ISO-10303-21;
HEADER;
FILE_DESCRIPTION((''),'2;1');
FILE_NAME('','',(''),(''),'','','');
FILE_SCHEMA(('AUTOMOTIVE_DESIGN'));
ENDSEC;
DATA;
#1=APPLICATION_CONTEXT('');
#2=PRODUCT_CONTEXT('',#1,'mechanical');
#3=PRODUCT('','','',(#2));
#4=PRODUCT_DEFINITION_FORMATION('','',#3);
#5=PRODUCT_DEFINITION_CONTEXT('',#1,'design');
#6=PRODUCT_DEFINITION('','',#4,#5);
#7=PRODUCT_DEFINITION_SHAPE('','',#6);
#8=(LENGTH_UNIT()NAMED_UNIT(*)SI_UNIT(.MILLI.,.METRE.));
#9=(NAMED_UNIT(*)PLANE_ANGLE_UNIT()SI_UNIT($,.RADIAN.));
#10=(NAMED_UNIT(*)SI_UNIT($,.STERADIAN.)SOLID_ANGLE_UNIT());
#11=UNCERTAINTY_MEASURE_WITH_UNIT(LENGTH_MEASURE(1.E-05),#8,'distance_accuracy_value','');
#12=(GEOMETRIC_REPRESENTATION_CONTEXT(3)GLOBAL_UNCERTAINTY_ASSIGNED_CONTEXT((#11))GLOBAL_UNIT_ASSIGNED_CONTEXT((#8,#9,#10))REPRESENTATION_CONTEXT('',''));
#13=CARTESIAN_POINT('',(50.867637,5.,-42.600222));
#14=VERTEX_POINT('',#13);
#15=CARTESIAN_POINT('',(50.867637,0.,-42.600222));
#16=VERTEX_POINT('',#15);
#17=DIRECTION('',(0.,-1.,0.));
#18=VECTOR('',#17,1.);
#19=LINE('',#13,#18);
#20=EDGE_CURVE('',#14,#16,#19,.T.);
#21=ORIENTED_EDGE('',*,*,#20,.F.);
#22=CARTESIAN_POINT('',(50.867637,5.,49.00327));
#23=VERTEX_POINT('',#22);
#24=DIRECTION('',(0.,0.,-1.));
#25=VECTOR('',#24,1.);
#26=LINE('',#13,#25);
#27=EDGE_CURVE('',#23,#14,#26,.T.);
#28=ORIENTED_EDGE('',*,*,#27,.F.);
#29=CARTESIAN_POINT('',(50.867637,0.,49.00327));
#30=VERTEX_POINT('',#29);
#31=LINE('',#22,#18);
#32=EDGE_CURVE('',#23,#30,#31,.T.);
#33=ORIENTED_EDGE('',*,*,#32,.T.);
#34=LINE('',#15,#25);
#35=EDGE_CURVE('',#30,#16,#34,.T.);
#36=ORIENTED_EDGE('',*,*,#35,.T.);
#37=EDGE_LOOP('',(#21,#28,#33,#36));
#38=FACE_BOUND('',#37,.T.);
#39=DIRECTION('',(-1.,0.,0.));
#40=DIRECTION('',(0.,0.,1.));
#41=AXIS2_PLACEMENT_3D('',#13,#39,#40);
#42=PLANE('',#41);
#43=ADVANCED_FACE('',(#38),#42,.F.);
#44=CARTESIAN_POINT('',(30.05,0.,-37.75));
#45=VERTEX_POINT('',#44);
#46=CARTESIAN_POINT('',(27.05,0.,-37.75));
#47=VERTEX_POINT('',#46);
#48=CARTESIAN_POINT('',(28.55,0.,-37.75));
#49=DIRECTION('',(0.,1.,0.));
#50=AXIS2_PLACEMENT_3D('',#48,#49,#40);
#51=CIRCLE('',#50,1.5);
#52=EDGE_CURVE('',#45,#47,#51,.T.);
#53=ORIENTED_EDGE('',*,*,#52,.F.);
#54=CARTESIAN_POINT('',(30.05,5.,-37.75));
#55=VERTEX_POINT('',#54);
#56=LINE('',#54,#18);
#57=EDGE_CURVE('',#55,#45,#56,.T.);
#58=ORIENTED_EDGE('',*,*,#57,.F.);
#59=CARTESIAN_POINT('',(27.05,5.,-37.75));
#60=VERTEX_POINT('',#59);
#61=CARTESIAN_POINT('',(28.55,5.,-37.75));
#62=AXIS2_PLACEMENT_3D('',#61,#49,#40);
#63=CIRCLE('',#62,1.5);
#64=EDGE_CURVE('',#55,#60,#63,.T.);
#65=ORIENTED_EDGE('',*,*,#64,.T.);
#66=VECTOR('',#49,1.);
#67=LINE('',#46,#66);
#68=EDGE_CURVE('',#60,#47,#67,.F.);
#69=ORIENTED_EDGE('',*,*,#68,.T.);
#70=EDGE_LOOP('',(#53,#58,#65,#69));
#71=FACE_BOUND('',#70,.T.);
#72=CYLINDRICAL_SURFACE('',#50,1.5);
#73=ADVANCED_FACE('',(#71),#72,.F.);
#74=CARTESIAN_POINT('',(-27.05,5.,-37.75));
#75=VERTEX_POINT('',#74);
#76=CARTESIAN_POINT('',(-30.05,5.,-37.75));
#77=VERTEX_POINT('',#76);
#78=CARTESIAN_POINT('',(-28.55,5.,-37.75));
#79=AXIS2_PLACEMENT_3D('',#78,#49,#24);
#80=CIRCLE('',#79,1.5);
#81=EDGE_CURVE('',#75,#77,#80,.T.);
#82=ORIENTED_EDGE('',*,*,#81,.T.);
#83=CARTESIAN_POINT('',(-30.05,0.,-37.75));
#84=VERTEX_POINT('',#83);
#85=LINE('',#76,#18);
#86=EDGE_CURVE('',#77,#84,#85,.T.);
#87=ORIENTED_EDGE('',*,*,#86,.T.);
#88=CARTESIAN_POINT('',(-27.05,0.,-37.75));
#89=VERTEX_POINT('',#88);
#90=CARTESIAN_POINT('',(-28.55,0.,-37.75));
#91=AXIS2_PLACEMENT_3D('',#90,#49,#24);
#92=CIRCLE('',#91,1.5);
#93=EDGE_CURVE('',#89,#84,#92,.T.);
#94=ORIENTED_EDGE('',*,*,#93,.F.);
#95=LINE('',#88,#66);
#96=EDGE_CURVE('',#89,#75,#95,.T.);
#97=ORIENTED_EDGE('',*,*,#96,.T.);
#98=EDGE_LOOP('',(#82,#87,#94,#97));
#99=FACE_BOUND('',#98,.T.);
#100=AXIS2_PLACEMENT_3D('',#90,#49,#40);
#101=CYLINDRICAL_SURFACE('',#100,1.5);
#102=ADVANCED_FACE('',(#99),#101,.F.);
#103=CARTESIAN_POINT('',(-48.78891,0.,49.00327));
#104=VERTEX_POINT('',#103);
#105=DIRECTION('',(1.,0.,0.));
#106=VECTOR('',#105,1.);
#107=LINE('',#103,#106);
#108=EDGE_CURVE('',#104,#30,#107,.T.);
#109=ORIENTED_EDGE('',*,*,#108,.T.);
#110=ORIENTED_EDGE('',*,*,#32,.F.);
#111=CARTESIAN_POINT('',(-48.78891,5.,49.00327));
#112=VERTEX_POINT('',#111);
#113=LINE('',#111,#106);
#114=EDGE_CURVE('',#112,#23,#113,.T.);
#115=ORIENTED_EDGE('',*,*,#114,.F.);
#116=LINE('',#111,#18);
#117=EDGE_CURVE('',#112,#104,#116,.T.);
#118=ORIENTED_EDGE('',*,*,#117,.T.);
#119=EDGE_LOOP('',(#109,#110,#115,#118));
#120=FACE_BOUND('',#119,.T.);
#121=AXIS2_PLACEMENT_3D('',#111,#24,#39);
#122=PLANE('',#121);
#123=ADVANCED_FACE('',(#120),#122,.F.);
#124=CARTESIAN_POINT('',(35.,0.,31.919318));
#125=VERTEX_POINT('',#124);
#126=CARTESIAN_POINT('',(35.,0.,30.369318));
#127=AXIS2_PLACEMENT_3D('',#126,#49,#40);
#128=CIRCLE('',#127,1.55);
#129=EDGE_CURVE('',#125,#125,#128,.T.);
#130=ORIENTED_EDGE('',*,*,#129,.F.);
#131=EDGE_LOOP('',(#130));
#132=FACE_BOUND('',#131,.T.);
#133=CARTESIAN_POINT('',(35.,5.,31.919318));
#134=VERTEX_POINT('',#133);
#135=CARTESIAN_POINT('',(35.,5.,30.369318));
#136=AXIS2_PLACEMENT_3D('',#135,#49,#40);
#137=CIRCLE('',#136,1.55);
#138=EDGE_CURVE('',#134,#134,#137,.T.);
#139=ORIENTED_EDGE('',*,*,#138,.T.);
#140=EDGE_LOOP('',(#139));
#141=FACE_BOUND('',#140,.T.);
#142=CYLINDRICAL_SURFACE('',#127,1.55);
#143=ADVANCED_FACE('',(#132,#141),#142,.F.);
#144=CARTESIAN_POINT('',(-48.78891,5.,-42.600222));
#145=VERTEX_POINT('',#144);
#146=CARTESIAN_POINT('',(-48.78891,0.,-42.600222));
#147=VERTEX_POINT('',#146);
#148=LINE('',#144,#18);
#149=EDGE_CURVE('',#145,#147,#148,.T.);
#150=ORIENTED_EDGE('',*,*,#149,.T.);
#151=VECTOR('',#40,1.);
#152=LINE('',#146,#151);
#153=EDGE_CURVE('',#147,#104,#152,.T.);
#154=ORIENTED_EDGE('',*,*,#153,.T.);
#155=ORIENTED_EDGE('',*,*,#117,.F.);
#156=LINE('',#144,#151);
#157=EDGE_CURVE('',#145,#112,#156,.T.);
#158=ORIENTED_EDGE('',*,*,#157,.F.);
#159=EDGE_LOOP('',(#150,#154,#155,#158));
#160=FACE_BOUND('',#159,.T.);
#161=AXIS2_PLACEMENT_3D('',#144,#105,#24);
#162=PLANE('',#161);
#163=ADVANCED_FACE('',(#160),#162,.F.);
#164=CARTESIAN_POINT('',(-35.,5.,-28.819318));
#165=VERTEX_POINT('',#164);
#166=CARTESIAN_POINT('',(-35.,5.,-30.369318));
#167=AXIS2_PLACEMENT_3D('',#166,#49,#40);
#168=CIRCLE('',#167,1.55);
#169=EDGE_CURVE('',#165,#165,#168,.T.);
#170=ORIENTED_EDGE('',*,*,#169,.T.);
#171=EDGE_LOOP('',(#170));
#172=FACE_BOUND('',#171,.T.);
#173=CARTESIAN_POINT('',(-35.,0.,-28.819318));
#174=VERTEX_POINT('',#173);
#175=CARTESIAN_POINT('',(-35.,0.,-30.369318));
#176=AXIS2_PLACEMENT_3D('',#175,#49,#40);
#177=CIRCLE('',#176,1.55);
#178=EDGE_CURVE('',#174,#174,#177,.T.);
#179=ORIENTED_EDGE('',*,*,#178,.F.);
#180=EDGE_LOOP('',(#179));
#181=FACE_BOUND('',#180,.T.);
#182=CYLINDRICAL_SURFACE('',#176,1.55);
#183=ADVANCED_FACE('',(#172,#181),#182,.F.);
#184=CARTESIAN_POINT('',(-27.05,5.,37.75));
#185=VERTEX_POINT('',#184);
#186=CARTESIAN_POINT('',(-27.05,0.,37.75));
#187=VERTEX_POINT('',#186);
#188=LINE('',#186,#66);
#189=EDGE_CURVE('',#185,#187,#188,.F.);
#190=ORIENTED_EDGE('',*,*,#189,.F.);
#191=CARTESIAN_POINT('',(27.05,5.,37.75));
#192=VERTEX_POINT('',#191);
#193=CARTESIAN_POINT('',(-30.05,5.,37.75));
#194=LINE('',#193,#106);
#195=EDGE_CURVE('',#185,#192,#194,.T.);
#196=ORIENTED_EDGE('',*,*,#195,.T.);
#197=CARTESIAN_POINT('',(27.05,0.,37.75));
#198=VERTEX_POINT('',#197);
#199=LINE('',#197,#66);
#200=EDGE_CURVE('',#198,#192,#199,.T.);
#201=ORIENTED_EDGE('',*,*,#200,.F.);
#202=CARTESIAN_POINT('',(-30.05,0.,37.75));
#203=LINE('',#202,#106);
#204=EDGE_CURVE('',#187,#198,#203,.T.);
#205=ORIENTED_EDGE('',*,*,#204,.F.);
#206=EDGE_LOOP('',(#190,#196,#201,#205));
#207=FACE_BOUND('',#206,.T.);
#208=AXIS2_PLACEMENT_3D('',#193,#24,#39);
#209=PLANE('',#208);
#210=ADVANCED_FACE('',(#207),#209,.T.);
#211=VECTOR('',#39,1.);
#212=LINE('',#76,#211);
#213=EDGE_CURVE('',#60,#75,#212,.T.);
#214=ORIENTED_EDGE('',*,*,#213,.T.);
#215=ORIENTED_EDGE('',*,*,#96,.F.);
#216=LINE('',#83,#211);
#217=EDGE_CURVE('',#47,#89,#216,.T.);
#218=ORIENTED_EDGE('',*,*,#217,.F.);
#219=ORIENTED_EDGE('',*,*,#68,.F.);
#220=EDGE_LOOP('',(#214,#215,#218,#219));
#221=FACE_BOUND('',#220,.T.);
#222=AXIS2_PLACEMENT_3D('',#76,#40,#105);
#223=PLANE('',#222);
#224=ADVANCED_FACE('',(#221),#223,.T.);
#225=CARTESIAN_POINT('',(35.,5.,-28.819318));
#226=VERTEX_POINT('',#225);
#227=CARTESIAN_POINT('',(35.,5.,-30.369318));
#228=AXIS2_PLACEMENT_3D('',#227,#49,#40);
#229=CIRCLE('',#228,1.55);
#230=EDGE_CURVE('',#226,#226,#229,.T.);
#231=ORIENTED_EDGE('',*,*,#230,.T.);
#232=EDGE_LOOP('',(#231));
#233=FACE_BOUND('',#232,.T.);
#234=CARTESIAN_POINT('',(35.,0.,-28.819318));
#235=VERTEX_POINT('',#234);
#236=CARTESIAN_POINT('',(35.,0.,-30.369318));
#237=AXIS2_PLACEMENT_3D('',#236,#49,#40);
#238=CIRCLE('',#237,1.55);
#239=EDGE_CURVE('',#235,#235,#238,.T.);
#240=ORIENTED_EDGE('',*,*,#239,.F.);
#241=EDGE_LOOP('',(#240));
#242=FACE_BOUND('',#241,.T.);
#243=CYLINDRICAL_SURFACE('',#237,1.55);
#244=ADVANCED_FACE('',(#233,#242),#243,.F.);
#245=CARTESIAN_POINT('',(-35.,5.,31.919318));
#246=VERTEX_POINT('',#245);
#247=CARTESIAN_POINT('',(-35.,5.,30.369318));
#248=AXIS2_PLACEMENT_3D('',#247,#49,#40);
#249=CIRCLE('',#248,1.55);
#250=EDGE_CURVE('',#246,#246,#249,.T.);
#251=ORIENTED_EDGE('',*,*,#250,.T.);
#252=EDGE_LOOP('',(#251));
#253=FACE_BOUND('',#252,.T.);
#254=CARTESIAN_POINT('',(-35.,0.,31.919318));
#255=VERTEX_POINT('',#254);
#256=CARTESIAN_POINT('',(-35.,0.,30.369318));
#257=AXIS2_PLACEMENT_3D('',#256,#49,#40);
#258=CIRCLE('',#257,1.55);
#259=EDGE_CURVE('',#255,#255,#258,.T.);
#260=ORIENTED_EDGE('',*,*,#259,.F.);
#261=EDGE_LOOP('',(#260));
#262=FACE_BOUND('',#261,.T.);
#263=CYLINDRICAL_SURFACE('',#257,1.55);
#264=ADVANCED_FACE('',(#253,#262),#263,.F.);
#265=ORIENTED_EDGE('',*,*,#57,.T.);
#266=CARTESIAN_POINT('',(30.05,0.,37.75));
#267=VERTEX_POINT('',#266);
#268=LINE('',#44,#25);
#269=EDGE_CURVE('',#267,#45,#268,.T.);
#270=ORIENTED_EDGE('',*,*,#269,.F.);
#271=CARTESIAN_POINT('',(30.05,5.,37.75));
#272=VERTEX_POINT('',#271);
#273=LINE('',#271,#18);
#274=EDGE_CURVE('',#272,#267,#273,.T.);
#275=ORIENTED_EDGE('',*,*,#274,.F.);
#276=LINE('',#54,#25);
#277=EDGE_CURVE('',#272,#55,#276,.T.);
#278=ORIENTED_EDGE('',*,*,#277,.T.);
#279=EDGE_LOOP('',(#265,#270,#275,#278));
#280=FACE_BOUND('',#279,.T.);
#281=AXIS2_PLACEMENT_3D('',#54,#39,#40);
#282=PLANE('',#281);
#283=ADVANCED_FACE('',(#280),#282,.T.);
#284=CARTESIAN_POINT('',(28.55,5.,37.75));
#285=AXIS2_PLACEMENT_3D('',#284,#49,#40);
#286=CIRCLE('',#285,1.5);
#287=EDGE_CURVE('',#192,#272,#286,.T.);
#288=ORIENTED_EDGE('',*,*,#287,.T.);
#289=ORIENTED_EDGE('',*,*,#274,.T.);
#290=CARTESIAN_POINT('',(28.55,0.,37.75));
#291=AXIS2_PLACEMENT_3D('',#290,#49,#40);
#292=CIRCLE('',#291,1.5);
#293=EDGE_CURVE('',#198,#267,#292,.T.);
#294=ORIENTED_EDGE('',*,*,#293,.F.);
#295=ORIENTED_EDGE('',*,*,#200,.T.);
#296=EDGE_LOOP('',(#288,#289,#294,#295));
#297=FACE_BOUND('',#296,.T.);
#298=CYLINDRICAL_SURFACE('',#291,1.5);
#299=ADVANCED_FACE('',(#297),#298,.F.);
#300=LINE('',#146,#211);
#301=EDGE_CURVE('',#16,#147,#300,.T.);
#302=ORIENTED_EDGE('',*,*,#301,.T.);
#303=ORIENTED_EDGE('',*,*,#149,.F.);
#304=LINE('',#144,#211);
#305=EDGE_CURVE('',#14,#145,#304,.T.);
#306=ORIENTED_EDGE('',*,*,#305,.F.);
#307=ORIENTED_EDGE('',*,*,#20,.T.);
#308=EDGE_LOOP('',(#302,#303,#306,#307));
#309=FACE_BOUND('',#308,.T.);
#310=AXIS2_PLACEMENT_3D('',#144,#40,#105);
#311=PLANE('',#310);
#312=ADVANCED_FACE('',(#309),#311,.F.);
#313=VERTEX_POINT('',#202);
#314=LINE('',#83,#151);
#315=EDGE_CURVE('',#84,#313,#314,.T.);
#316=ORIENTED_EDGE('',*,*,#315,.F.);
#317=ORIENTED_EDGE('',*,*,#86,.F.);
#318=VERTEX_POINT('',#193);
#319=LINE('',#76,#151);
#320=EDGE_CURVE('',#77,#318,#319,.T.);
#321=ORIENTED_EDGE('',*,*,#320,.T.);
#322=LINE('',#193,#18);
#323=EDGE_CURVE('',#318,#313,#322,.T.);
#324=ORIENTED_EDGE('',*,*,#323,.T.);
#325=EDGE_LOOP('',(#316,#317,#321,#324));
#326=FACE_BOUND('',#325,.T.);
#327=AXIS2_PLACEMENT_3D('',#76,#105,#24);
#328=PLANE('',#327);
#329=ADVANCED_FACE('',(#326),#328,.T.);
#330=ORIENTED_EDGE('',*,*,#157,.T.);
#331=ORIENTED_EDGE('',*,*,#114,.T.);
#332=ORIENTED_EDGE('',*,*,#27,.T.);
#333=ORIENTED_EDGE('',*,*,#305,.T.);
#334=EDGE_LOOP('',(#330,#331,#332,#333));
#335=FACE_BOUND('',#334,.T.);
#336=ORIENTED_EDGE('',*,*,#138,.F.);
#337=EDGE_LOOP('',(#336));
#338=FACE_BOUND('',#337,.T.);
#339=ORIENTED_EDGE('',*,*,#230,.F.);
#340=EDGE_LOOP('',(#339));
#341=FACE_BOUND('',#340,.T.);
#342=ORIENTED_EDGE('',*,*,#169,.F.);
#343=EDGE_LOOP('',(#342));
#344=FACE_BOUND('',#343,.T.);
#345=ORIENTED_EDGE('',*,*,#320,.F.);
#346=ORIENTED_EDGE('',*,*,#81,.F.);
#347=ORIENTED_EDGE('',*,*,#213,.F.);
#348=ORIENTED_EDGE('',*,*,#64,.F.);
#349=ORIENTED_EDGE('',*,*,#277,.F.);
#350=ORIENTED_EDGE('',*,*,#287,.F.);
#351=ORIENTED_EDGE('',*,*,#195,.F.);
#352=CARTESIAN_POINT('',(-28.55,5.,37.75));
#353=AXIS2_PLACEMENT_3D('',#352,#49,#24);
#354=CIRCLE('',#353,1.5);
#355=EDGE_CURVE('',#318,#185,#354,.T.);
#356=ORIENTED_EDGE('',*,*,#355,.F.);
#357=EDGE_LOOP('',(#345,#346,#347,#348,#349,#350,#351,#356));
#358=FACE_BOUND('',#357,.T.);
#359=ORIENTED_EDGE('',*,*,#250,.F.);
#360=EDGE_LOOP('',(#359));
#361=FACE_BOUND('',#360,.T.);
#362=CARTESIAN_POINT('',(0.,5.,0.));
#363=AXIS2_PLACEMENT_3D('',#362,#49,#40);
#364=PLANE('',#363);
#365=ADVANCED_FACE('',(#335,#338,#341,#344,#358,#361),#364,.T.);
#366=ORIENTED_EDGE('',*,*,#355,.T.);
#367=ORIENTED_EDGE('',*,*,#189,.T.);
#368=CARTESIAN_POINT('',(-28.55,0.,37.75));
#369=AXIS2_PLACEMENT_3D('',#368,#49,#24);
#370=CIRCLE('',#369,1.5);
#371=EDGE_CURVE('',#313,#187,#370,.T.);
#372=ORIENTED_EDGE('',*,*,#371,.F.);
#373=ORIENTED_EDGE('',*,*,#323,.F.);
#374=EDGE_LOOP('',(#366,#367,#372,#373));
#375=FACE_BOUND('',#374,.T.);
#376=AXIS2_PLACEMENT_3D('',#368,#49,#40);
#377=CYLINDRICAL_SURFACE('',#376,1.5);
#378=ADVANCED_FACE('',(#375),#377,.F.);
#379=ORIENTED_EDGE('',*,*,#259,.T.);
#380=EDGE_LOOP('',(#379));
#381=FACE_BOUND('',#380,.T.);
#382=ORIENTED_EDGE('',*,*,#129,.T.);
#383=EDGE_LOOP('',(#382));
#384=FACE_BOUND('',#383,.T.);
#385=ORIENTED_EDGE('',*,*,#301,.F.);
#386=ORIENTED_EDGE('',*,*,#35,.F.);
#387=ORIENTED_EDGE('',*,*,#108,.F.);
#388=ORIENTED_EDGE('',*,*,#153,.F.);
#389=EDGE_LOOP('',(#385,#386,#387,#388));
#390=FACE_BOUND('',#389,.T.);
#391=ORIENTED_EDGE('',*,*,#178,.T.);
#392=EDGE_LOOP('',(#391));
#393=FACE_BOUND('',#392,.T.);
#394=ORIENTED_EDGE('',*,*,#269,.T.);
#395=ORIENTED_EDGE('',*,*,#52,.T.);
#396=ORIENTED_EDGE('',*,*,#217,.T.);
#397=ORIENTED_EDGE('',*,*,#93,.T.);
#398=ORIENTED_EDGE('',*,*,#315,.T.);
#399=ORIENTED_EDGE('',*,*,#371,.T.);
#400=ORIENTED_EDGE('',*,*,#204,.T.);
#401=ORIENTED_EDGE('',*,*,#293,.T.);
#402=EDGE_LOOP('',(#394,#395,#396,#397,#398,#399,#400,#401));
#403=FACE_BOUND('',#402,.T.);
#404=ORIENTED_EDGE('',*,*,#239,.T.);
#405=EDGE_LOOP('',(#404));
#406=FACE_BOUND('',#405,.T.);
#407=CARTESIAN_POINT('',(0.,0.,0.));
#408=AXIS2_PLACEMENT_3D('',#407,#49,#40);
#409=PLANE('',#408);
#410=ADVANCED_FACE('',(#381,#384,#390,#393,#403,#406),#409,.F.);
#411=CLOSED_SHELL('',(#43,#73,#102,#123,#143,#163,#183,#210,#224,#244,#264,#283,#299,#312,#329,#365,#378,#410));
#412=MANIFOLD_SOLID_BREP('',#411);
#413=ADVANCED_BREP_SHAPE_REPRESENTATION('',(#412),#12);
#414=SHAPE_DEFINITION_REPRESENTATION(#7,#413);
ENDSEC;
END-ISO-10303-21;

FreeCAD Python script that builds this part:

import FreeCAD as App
import Part
import Sketcher

V = App.Vector
Q = App.Units.Quantity

doc = App.newDocument("Part")
body = doc.addObject("PartDesign::Body", "Body")

sketch1 = body.newObject("Sketcher::SketchObject", "Sketch")
sketch1.AttachmentSupport = (doc.getObject("XZ_Plane"), [""])
sketch1.MapMode = "FlatFace"
sketch1.addGeometry(Part.LineSegment(V(-49, -43, 0), V(-49, 49, 0)), False)
sketch1.addGeometry(Part.LineSegment(V(-49, 49, 0), V(51, 49, 0)), False)
sketch1.addGeometry(Part.LineSegment(V(51, 49, 0), V(51, -43, 0)), False)
sketch1.addGeometry(Part.LineSegment(V(51, -43, 0), V(-49, -43, 0)), False)
sketch1.addGeometry(Part.LineSegment(V(30, 38, 0), V(-30, 38, 0)), False)
sketch1.addGeometry(Part.LineSegment(V(-30, 38, 0), V(-30, -38, 0)), False)
sketch1.addGeometry(Part.LineSegment(V(-30, -38, 0), V(30, -38, 0)), False)
sketch1.addGeometry(Part.LineSegment(V(30, -38, 0), V(30, 38, 0)), False)
sketch1.addConstraint(Sketcher.Constraint("Coincident", 0, 2, 1, 1))
sketch1.addConstraint(Sketcher.Constraint("Coincident", 1, 2, 2, 1))
sketch1.addConstraint(Sketcher.Constraint("Coincident", 2, 2, 3, 1))
sketch1.addConstraint(Sketcher.Constraint("Coincident", 3, 2, 0, 1))
sketch1.addConstraint(Sketcher.Constraint("Coincident", 4, 2, 5, 1))
sketch1.addConstraint(Sketcher.Constraint("Coincident", 5, 2, 6, 1))
sketch1.addConstraint(Sketcher.Constraint("Coincident", 6, 2, 7, 1))
sketch1.addConstraint(Sketcher.Constraint("Coincident", 7, 2, 4, 1))
sketch1.addConstraint(Sketcher.Constraint("Vertical", 0))
sketch1.addConstraint(Sketcher.Constraint("Horizontal", 1))
sketch1.addConstraint(Sketcher.Constraint("Vertical", 2))
sketch1.addConstraint(Sketcher.Constraint("Horizontal", 3))
sketch1.addConstraint(Sketcher.Constraint("Horizontal", 4))
sketch1.addConstraint(Sketcher.Constraint("Vertical", 5))
sketch1.addConstraint(Sketcher.Constraint("Horizontal", 6))
sketch1.addConstraint(Sketcher.Constraint("Vertical", 7))
sketch1.addConstraint(Sketcher.Constraint("Symmetric", 4, 2, 6, 2, -1, 1))
sketch1.addConstraint(Sketcher.Constraint("DistanceX", 4, 2, 4, 1, Q("60.1 mm")))
sketch1.addConstraint(Sketcher.Constraint("DistanceY", 5, 2, 5, 1, Q("75.5 mm")))
sketch1.addConstraint(Sketcher.Constraint("DistanceY", 0, 1, 0, 2, Q("91.603492 mm")))
sketch1.addConstraint(Sketcher.Constraint("DistanceX", 1, 1, 1, 2, Q("99.656546 mm")))
sketch1.addConstraint(Sketcher.Constraint("DistanceX", 0, 2, -1, 1, Q("48.78891 mm")))
sketch1.addConstraint(Sketcher.Constraint("DistanceY", -1, 1, 0, 2, Q("49.00327 mm")))
pad1 = body.newObject("PartDesign::Pad", "Pad")
pad1.Profile = sketch1
pad1.Length = 5
pad1.Reversed = True

sketch2 = body.newObject("Sketcher::SketchObject", "Sketch001")
sketch2.AttachmentSupport = (doc.getObject("XZ_Plane"), [""])
sketch2.MapMode = "FlatFace"
sketch2.AttachmentOffset = App.Placement(V(0, 0, -5), App.Rotation())
sketch2.addGeometry(Part.Circle(V(35, -30.4, 0), V(0, 0, 1), 1.6), False)
sketch2.addGeometry(Part.Circle(V(35, 30.4, 0), V(0, 0, 1), 1.6), False)
sketch2.addGeometry(Part.Circle(V(-35, 30.4, 0), V(0, 0, 1), 1.6), False)
sketch2.addGeometry(Part.Circle(V(-35, -30.4, 0), V(0, 0, 1), 1.6), False)
sketch2.addConstraint(Sketcher.Constraint("Equal", 0, 1))
sketch2.addConstraint(Sketcher.Constraint("Equal", 1, 2))
sketch2.addConstraint(Sketcher.Constraint("Equal", 2, 3))
sketch2.addConstraint(Sketcher.Constraint("Symmetric", 0, 3, 2, 3, -1, 1))
sketch2.addConstraint(Sketcher.Constraint("Symmetric", 1, 3, 3, 3, -1, 1))
sketch2.addConstraint(Sketcher.Constraint("Symmetric", 1, 3, 2, 3, -2))
sketch2.addConstraint(Sketcher.Constraint("Diameter", 0, Q("3.1 mm")))
sketch2.addConstraint(Sketcher.Constraint("DistanceX", -1, 1, 0, 3, Q("35 mm")))
sketch2.addConstraint(Sketcher.Constraint("DistanceY", 0, 3, -1, 1, Q("30.369318 mm")))
pocket1 = body.newObject("PartDesign::Pocket", "Pocket")
pocket1.Profile = sketch2
pocket1.Length = 5
pocket1.Reversed = True

sketch3 = body.newObject("Sketcher::SketchObject", "Sketch002")
sketch3.AttachmentSupport = (doc.getObject("XZ_Plane"), [""])
sketch3.MapMode = "FlatFace"
sketch3.AttachmentOffset = App.Placement(V(0, 0, -5), App.Rotation())
sketch3.addGeometry(Part.Circle(V(28.6, 37.8, 0), V(0, 0, 1), 1.5), False)
sketch3.addGeometry(Part.Circle(V(28.6, -37.8, 0), V(0, 0, 1), 1.5), False)
sketch3.addGeometry(Part.Circle(V(-28.6, -37.8, 0), V(0, 0, 1), 1.5), False)
sketch3.addGeometry(Part.Circle(V(-28.6, 37.8, 0), V(0, 0, 1), 1.5), False)
sketch3.addConstraint(Sketcher.Constraint("Equal", 0, 1))
sketch3.addConstraint(Sketcher.Constraint("Equal", 1, 2))
sketch3.addConstraint(Sketcher.Constraint("Equal", 2, 3))
sketch3.addConstraint(Sketcher.Constraint("Symmetric", 0, 3, 2, 3, -1, 1))
sketch3.addConstraint(Sketcher.Constraint("Symmetric", 1, 3, 3, 3, -1, 1))
sketch3.addConstraint(Sketcher.Constraint("Symmetric", 1, 3, 2, 3, -2))
sketch3.addConstraint(Sketcher.Constraint("Diameter", 0, Q("3 mm")))
sketch3.addConstraint(Sketcher.Constraint("DistanceY", 1, 3, 0, 3, Q("75.5 mm")))
sketch3.addConstraint(Sketcher.Constraint("DistanceX", 2, 3, 1, 3, Q("57.1 mm")))
pocket2 = body.newObject("PartDesign::Pocket", "Pocket001")
pocket2.Profile = sketch3
pocket2.Length = 5
pocket2.Reversed = True

doc.recompute()
